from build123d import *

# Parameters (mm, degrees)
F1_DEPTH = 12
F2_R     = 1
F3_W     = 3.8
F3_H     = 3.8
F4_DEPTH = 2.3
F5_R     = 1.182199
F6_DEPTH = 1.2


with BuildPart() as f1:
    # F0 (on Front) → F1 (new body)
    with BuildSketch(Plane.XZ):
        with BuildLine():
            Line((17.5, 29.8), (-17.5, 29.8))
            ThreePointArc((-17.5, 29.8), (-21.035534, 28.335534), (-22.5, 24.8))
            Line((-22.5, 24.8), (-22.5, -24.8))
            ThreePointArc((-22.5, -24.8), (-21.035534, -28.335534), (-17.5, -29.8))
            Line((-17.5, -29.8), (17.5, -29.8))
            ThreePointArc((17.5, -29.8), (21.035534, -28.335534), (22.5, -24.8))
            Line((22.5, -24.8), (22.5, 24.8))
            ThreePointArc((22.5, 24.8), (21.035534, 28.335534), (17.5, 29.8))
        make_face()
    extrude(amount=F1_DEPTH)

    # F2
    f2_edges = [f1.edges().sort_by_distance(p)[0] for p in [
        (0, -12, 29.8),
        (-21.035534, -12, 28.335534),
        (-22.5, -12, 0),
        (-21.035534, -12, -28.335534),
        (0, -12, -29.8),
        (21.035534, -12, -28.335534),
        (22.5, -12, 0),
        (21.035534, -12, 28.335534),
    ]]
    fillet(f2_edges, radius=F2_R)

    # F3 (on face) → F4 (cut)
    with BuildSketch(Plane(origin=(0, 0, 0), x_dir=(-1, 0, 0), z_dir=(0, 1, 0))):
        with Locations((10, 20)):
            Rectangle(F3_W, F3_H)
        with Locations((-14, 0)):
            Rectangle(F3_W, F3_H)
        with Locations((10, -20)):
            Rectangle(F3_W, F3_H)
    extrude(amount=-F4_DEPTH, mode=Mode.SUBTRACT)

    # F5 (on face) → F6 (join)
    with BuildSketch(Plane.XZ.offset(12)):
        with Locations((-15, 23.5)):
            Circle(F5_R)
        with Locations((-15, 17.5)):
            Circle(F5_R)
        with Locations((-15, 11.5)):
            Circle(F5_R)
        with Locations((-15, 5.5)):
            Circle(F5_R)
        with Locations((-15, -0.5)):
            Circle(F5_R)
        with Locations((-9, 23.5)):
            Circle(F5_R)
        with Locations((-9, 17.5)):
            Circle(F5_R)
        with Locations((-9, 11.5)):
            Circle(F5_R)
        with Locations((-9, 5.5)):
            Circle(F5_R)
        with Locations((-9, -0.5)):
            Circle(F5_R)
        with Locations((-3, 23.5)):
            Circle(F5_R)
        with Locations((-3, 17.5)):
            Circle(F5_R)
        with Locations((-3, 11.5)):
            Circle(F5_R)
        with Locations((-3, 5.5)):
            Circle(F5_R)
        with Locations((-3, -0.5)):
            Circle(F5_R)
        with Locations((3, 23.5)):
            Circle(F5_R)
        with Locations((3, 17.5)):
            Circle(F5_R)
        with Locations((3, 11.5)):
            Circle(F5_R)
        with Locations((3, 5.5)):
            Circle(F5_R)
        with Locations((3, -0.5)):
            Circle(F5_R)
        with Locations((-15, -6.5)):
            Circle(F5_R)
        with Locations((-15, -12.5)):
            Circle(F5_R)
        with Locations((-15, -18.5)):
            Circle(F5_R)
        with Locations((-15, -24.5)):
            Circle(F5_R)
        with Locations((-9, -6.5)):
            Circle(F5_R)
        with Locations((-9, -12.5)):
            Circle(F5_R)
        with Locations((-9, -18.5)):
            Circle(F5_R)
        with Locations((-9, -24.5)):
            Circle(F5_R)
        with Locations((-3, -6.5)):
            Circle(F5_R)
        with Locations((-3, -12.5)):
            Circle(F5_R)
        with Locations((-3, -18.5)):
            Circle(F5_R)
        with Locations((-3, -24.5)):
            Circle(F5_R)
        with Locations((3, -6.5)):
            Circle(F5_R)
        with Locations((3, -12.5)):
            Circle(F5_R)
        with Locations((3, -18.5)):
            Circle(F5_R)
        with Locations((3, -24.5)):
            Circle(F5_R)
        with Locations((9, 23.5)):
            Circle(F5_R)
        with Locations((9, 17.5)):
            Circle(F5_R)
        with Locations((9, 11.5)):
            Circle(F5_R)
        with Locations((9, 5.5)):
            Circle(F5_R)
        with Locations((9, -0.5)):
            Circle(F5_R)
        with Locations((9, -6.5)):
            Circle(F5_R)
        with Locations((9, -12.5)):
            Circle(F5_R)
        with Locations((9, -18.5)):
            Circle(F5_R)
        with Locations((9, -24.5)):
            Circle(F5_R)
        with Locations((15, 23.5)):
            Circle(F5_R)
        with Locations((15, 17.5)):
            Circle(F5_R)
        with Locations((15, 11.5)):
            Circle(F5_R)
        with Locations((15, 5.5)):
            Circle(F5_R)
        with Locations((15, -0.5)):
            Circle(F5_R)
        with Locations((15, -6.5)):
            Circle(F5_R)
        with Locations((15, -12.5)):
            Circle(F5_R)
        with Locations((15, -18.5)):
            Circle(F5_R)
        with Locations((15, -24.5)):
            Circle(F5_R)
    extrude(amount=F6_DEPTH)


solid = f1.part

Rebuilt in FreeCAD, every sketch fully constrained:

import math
import FreeCAD as App
import Part
import Sketcher
from FreeCAD import Vector
Q = App.Units.Quantity


def edges_at(feature, points):
    """Names of the edges that pass closest to the given points."""
    edges = feature.Shape.Edges
    near = lambda p: min(range(len(edges)), key=lambda i: edges[i].distToShape(Part.Vertex(*p))[0])
    return sorted({f"Edge{near(p) + 1}" for p in points})


def add_polygon(sketch, points):
    """Adds a closed chain of lines whose ends are joined by coincident constraints."""
    first, n = sketch.GeometryCount, len(points)
    for a, b in zip(points, points[1:] + points[:1]):
        sketch.addGeometry(Part.LineSegment(App.Vector(*a, 0), App.Vector(*b, 0)), False)
    for i in range(n):
        sketch.addConstraint(Sketcher.Constraint("Coincident", first + i, 2, first + (i + 1) % n, 1))

doc = App.newDocument("Part")
body = doc.addObject("PartDesign::Body", "Body")

sketch1 = doc.addObject("Sketcher::SketchObject", "Sketch")
body.addObject(sketch1)
sketch1.AttachmentSupport = (doc.XZ_Plane, [""])
sketch1.MapMode = "FlatFace"
sketch1.addGeometry([
    Part.LineSegment(Vector(17.5, 29.8, 0), Vector(-17.5, 29.8, 0)),
    Part.ArcOfCircle(Part.Circle(Vector(-17.5, 24.8, 0), Vector(0, 0, 1), 5), math.radians(89.999996), math.radians(180.000004)),
    Part.LineSegment(Vector(-22.5, 24.8, 0), Vector(-22.5, -24.8, 0)),
    Part.ArcOfCircle(Part.Circle(Vector(-17.5, -24.8, 0), Vector(0, 0, 1), 5), math.radians(179.999996), math.radians(270.000004)),
    Part.LineSegment(Vector(-17.5, -29.8, 0), Vector(17.5, -29.8, 0)),
    Part.ArcOfCircle(Part.Circle(Vector(17.5, -24.8, 0), Vector(0, 0, 1), 5), math.radians(-90.000004), math.radians(0.000004)),
    Part.LineSegment(Vector(22.5, -24.8, 0), Vector(22.5, 24.8, 0)),
    Part.ArcOfCircle(Part.Circle(Vector(17.5, 24.8, 0), Vector(0, 0, 1), 5), math.radians(-0.000004), math.radians(90.000004)),
], False)
sketch1.addConstraint([
    Sketcher.Constraint("Tangent", 0, 2, 1, 1),
    Sketcher.Constraint("Tangent", 1, 2, 2, 1),
    Sketcher.Constraint("Tangent", 2, 2, 3, 1),
    Sketcher.Constraint("Tangent", 3, 2, 4, 1),
    Sketcher.Constraint("Tangent", 4, 2, 5, 1),
    Sketcher.Constraint("Tangent", 5, 2, 6, 1),
    Sketcher.Constraint("Tangent", 6, 2, 7, 1),
    Sketcher.Constraint("Tangent", 7, 2, 0, 1),
    Sketcher.Constraint("Horizontal", 0),
    Sketcher.Constraint("Vertical", 2),
    Sketcher.Constraint("Horizontal", 4),
    Sketcher.Constraint("Vertical", 6),
    Sketcher.Constraint("Equal", 1, 3),
    Sketcher.Constraint("Equal", 3, 5),
    Sketcher.Constraint("Equal", 5, 7),
    Sketcher.Constraint("Symmetric", 1, 3, 5, 3, -1, 1),
    Sketcher.Constraint("Radius", 1, Q("5 mm")),
    Sketcher.Constraint("DistanceX", 0, 2, 0, 1, Q("35 mm")),
    Sketcher.Constraint("DistanceY", 2, 2, 2, 1, Q("49.6 mm")),
])
pad1 = doc.addObject("PartDesign::Pad", "Pad")
body.addObject(pad1)
pad1.Profile = sketch1
pad1.Length = 12
doc.recompute()

fillet = doc.addObject("PartDesign::Fillet", "Fillet")
body.addObject(fillet)
fillet.Base = (pad1, edges_at(pad1, [
    (0, -12, 29.8),
    (-21.036, -12, 28.336),
    (-22.5, -12, 0),
    (-21.036, -12, -28.336),
    (0, -12, -29.8),
    (21.036, -12, -28.336),
    (22.5, -12, 0),
    (21.036, -12, 28.336),
]))
fillet.Radius = 1

sketch2 = doc.addObject("Sketcher::SketchObject", "Sketch001")
body.addObject(sketch2)
sketch2.AttachmentSupport = (doc.XZ_Plane, [""])
sketch2.MapMode = "FlatFace"
add_polygon(sketch2, [(-8.1, 21.9), (-8.1, 18.1), (-11.9, 18.1), (-11.9, 21.9)])
add_polygon(sketch2, [(15.9, 1.9), (15.9, -1.9), (12.1, -1.9), (12.1, 1.9)])
add_polygon(sketch2, [(-8.1, -18.1), (-8.1, -21.9), (-11.9, -21.9), (-11.9, -18.1)])
sketch2.addConstraint([
    Sketcher.Constraint("Vertical", 0),
    Sketcher.Constraint("Horizontal", 1),
    Sketcher.Constraint("Vertical", 2),
    Sketcher.Constraint("Horizontal", 3),
    Sketcher.Constraint("Vertical", 4),
    Sketcher.Constraint("Horizontal", 5),
    Sketcher.Constraint("Vertical", 6),
    Sketcher.Constraint("Horizontal", 7),
    Sketcher.Constraint("Vertical", 8),
    Sketcher.Constraint("Horizontal", 9),
    Sketcher.Constraint("Vertical", 10),
    Sketcher.Constraint("Horizontal", 11),
    Sketcher.Constraint("Symmetric", 3, 2, 8, 2, -1),
    Sketcher.Constraint("Symmetric", 1, 2, 10, 2, -1),
    Sketcher.Constraint("Equal", 3, 5),
    Sketcher.Constraint("Equal", 11, 0),
    Sketcher.Constraint("Equal", 2, 4),
    Sketcher.Constraint("DistanceX", 1, 2, 1, 1, Q("3.8 mm")),
    Sketcher.Constraint("DistanceX", 0, 2, 4, 2, Q("24 mm")),
    Sketcher.Constraint("DistanceY", 4, 2, 0, 2, Q("20 mm")),
    Sketcher.Constraint("DistanceY", 8, 2, 5, 2, Q("20 mm")),
    Sketcher.Constraint("DistanceX", 0, 2, -1, 1, Q("8.1 mm")),
])
pocket1 = doc.addObject("PartDesign::Pocket", "Pocket")
body.addObject(pocket1)
pocket1.Profile = sketch2
pocket1.Length = 2.3
pocket1.Reversed = True

sketch3 = doc.addObject("Sketcher::SketchObject", "Sketch002")
body.addObject(sketch3)
sketch3.AttachmentSupport = (doc.XZ_Plane, [""])
sketch3.MapMode = "FlatFace"
sketch3.AttachmentOffset = App.Placement(Vector(0, 0, 12), App.Rotation())
sketch3.addGeometry([
    Part.Circle(Vector(-15, 23.5, 0), Vector(0, 0, 1), 1.182199),
    Part.Circle(Vector(-15, 17.5, 0), Vector(0, 0, 1), 1.182199),
    Part.Circle(Vector(-15, 11.5, 0), Vector(0, 0, 1), 1.182199),
    Part.Circle(Vector(-15, 5.5, 0), Vector(0, 0, 1), 1.182199),
    Part.Circle(Vector(-15, -0.5, 0), Vector(0, 0, 1), 1.182199),
    Part.Circle(Vector(-9, 23.5, 0), Vector(0, 0, 1), 1.182199),
    Part.Circle(Vector(-9, 17.5, 0), Vector(0, 0, 1), 1.182199),
    Part.Circle(Vector(-9, 11.5, 0), Vector(0, 0, 1), 1.182199),
    Part.Circle(Vector(-9, 5.5, 0), Vector(0, 0, 1), 1.182199),
    Part.Circle(Vector(-9, -0.5, 0), Vector(0, 0, 1), 1.182199),
    Part.Circle(Vector(-3, 23.5, 0), Vector(0, 0, 1), 1.182199),
    Part.Circle(Vector(-3, 17.5, 0), Vector(0, 0, 1), 1.182199),
    Part.Circle(Vector(-3, 11.5, 0), Vector(0, 0, 1), 1.182199),
    Part.Circle(Vector(-3, 5.5, 0), Vector(0, 0, 1), 1.182199),
    Part.Circle(Vector(-3, -0.5, 0), Vector(0, 0, 1), 1.182199),
    Part.Circle(Vector(3, 23.5, 0), Vector(0, 0, 1), 1.182199),
    Part.Circle(Vector(3, 17.5, 0), Vector(0, 0, 1), 1.182199),
    Part.Circle(Vector(3, 11.5, 0), Vector(0, 0, 1), 1.182199),
    Part.Circle(Vector(3, 5.5, 0), Vector(0, 0, 1), 1.182199),
    Part.Circle(Vector(3, -0.5, 0), Vector(0, 0, 1), 1.182199),
    Part.Circle(Vector(-15, -6.5, 0), Vector(0, 0, 1), 1.182199),
    Part.Circle(Vector(-15, -12.5, 0), Vector(0, 0, 1), 1.182199),
    Part.Circle(Vector(-15, -18.5, 0), Vector(0, 0, 1), 1.182199),
    Part.Circle(Vector(-15, -24.5, 0), Vector(0, 0, 1), 1.182199),
    Part.Circle(Vector(-9, -6.5, 0), Vector(0, 0, 1), 1.182199),
    Part.Circle(Vector(-9, -12.5, 0), Vector(0, 0, 1), 1.182199),
    Part.Circle(Vector(-9, -18.5, 0), Vector(0, 0, 1), 1.182199),
    Part.Circle(Vector(-9, -24.5, 0), Vector(0, 0, 1), 1.182199),
    Part.Circle(Vector(-3, -6.5, 0), Vector(0, 0, 1), 1.182199),
    Part.Circle(Vector(-3, -12.5, 0), Vector(0, 0, 1), 1.182199),
    Part.Circle(Vector(-3, -18.5, 0), Vector(0, 0, 1), 1.182199),
    Part.Circle(Vector(-3, -24.5, 0), Vector(0, 0, 1), 1.182199),
    Part.Circle(Vector(3, -6.5, 0), Vector(0, 0, 1), 1.182199),
    Part.Circle(Vector(3, -12.5, 0), Vector(0, 0, 1), 1.182199),
    Part.Circle(Vector(3, -18.5, 0), Vector(0, 0, 1), 1.182199),
    Part.Circle(Vector(3, -24.5, 0), Vector(0, 0, 1), 1.182199),
    Part.Circle(Vector(9, 23.5, 0), Vector(0, 0, 1), 1.182199),
    Part.Circle(Vector(9, 17.5, 0), Vector(0, 0, 1), 1.182199),
    Part.Circle(Vector(9, 11.5, 0), Vector(0, 0, 1), 1.182199),
    Part.Circle(Vector(9, 5.5, 0), Vector(0, 0, 1), 1.182199),
    Part.Circle(Vector(9, -0.5, 0), Vector(0, 0, 1), 1.182199),
    Part.Circle(Vector(9, -6.5, 0), Vector(0, 0, 1), 1.182199),
    Part.Circle(Vector(9, -12.5, 0), Vector(0, 0, 1), 1.182199),
    Part.Circle(Vector(9, -18.5, 0), Vector(0, 0, 1), 1.182199),
    Part.Circle(Vector(9, -24.5, 0), Vector(0, 0, 1), 1.182199),
    Part.Circle(Vector(15, 23.5, 0), Vector(0, 0, 1), 1.182199),
    Part.Circle(Vector(15, 17.5, 0), Vector(0, 0, 1), 1.182199),
    Part.Circle(Vector(15, 11.5, 0), Vector(0, 0, 1), 1.182199),
    Part.Circle(Vector(15, 5.5, 0), Vector(0, 0, 1), 1.182199),
    Part.Circle(Vector(15, -0.5, 0), Vector(0, 0, 1), 1.182199),
    Part.Circle(Vector(15, -6.5, 0), Vector(0, 0, 1), 1.182199),
    Part.Circle(Vector(15, -12.5, 0), Vector(0, 0, 1), 1.182199),
    Part.Circle(Vector(15, -18.5, 0), Vector(0, 0, 1), 1.182199),
    Part.Circle(Vector(15, -24.5, 0), Vector(0, 0, 1), 1.182199),
], False)
sketch3.addConstraint([
    Sketcher.Constraint("Equal", 0, 1),
    Sketcher.Constraint("Equal", 1, 2),
    Sketcher.Constraint("Equal", 2, 3),
    Sketcher.Constraint("Equal", 3, 4),
    Sketcher.Constraint("Equal", 4, 5),
    Sketcher.Constraint("Equal", 5, 6),
    Sketcher.Constraint("Equal", 6, 7),
    Sketcher.Constraint("Equal", 7, 8),
    Sketcher.Constraint("Equal", 8, 9),
    Sketcher.Constraint("Equal", 9, 10),
    Sketcher.Constraint("Equal", 10, 11),
    Sketcher.Constraint("Equal", 11, 12),
    Sketcher.Constraint("Equal", 12, 13),
    Sketcher.Constraint("Equal", 13, 14),
    Sketcher.Constraint("Equal", 14, 15),
    Sketcher.Constraint("Equal", 15, 16),
    Sketcher.Constraint("Equal", 16, 17),
    Sketcher.Constraint("Equal", 17, 18),
    Sketcher.Constraint("Equal", 18, 19),
    Sketcher.Constraint("Equal", 19, 20),
    Sketcher.Constraint("Equal", 20, 21),
    Sketcher.Constraint("Equal", 21, 22),
    Sketcher.Constraint("Equal", 22, 23),
    Sketcher.Constraint("Equal", 23, 24),
    Sketcher.Constraint("Equal", 24, 25),
    Sketcher.Constraint("Equal", 25, 26),
    Sketcher.Constraint("Equal", 26, 27),
    Sketcher.Constraint("Equal", 27, 28),
    Sketcher.Constraint("Equal", 28, 29),
    Sketcher.Constraint("Equal", 29, 30),
    Sketcher.Constraint("Equal", 30, 31),
    Sketcher.Constraint("Equal", 31, 32),
    Sketcher.Constraint("Equal", 32, 33),
    Sketcher.Constraint("Equal", 33, 34),
    Sketcher.Constraint("Equal", 34, 35),
    Sketcher.Constraint("Equal", 35, 36),
    Sketcher.Constraint("Equal", 36, 37),
    Sketcher.Constraint("Equal", 37, 38),
    Sketcher.Constraint("Equal", 38, 39),
    Sketcher.Constraint("Equal", 39, 40),
    Sketcher.Constraint("Equal", 40, 41),
    Sketcher.Constraint("Equal", 41, 42),
    Sketcher.Constraint("Equal", 42, 43),
    Sketcher.Constraint("Equal", 43, 44),
    Sketcher.Constraint("Equal", 44, 45),
    Sketcher.Constraint("Equal", 45, 46),
    Sketcher.Constraint("Equal", 46, 47),
    Sketcher.Constraint("Equal", 47, 48),
    Sketcher.Constraint("Equal", 48, 49),
    Sketcher.Constraint("Equal", 49, 50),
    Sketcher.Constraint("Equal", 50, 51),
    Sketcher.Constraint("Equal", 51, 52),
    Sketcher.Constraint("Equal", 52, 53),
    Sketcher.Constraint("Symmetric", 10, 3, 15, 3, -2),
    Sketcher.Constraint("Symmetric", 11, 3, 16, 3, -2),
    Sketcher.Constraint("Symmetric", 12, 3, 17, 3, -2),
    Sketcher.Constraint("Symmetric", 13, 3, 18, 3, -2),
    Sketcher.Constraint("Symmetric", 14, 3, 19, 3, -2),
    Sketcher.Constraint("Symmetric", 28, 3, 32, 3, -2),
    Sketcher.Constraint("Symmetric", 29, 3, 33, 3, -2),
    Sketcher.Constraint("Symmetric", 30, 3, 34, 3, -2),
    Sketcher.Constraint("Symmetric", 31, 3, 35, 3, -2),
    Sketcher.Constraint("Symmetric", 5, 3, 36, 3, -2),
    Sketcher.Constraint("Symmetric", 6, 3, 37, 3, -2),
    Sketcher.Constraint("Symmetric", 7, 3, 38, 3, -2),
    Sketcher.Constraint("Symmetric", 8, 3, 39, 3, -2),
    Sketcher.Constraint("Symmetric", 9, 3, 40, 3, -2),
    Sketcher.Constraint("Symmetric", 24, 3, 41, 3, -2),
    Sketcher.Constraint("Symmetric", 25, 3, 42, 3, -2),
    Sketcher.Constraint("Symmetric", 26, 3, 43, 3, -2),
    Sketcher.Constraint("Symmetric", 27, 3, 44, 3, -2),
    Sketcher.Constraint("Symmetric", 0, 3, 45, 3, -2),
    Sketcher.Constraint("Symmetric", 1, 3, 46, 3, -2),
    Sketcher.Constraint("Symmetric", 2, 3, 47, 3, -2),
    Sketcher.Constraint("Symmetric", 3, 3, 48, 3, -2),
    Sketcher.Constraint("Symmetric", 4, 3, 49, 3, -2),
    Sketcher.Constraint("Symmetric", 20, 3, 50, 3, -2),
    Sketcher.Constraint("Symmetric", 21, 3, 51, 3, -2),
    Sketcher.Constraint("Symmetric", 22, 3, 52, 3, -2),
    Sketcher.Constraint("Symmetric", 23, 3, 53, 3, -2),
    Sketcher.Constraint("Horizontal", 0, 3, 5, 3),
    Sketcher.Constraint("Horizontal", 1, 3, 6, 3),
    Sketcher.Constraint("Horizontal", 2, 3, 7, 3),
    Sketcher.Constraint("Horizontal", 3, 3, 8, 3),
    Sketcher.Constraint("Horizontal", 4, 3, 9, 3),
    Sketcher.Constraint("Horizontal", 5, 3, 10, 3),
    Sketcher.Constraint("Horizontal", 6, 3, 11, 3),
    Sketcher.Constraint("Horizontal", 7, 3, 12, 3),
    Sketcher.Constraint("Horizontal", 8, 3, 13, 3),
    Sketcher.Constraint("Horizontal", 9, 3, 14, 3),
    Sketcher.Constraint("Horizontal", 20, 3, 24, 3),
    Sketcher.Constraint("Horizontal", 21, 3, 25, 3),
    Sketcher.Constraint("Horizontal", 22, 3, 26, 3),
    Sketcher.Constraint("Horizontal", 23, 3, 27, 3),
    Sketcher.Constraint("Horizontal", 24, 3, 28, 3),
    Sketcher.Constraint("Horizontal", 25, 3, 29, 3),
    Sketcher.Constraint("Horizontal", 26, 3, 30, 3),
    Sketcher.Constraint("Horizontal", 27, 3, 31, 3),
    Sketcher.Constraint("Vertical", 0, 3, 1, 3),
    Sketcher.Constraint("Vertical", 1, 3, 2, 3),
    Sketcher.Constraint("Vertical", 2, 3, 3, 3),
    Sketcher.Constraint("Vertical", 3, 3, 4, 3),
    Sketcher.Constraint("Vertical", 5, 3, 6, 3),
    Sketcher.Constraint("Vertical", 6, 3, 7, 3),
    Sketcher.Constraint("Vertical", 7, 3, 8, 3),
    Sketcher.Constraint("Vertical", 8, 3, 9, 3),
    Sketcher.Constraint("Vertical", 10, 3, 11, 3),
    Sketcher.Constraint("Vertical", 11, 3, 12, 3),
    Sketcher.Constraint("Vertical", 12, 3, 13, 3),
    Sketcher.Constraint("Vertical", 13, 3, 14, 3),
    Sketcher.Constraint("Vertical", 4, 3, 20, 3),
    Sketcher.Constraint("Vertical", 20, 3, 21, 3),
    Sketcher.Constraint("Vertical", 21, 3, 22, 3),
    Sketcher.Constraint("Vertical", 22, 3, 23, 3),
    Sketcher.Constraint("Vertical", 9, 3, 24, 3),
    Sketcher.Constraint("Vertical", 24, 3, 25, 3),
    Sketcher.Constraint("Vertical", 25, 3, 26, 3),
    Sketcher.Constraint("Vertical", 26, 3, 27, 3),
    Sketcher.Constraint("Vertical", 14, 3, 28, 3),
    Sketcher.Constraint("Vertical", 28, 3, 29, 3),
    Sketcher.Constraint("Vertical", 29, 3, 30, 3),
    Sketcher.Constraint("Vertical", 30, 3, 31, 3),
    Sketcher.Constraint("DistanceX", 0, 3, -1, 1, Q("15 mm")),
    Sketcher.Constraint("DistanceX", 5, 3, -1, 1, Q("9 mm")),
    Sketcher.Constraint("DistanceX", 10, 3, -1, 1, Q("3 mm")),
    Sketcher.Constraint("DistanceY", 1, 3, 0, 3, Q("6 mm")),
    Sketcher.Constraint("DistanceY", 2, 3, 1, 3, Q("6 mm")),
    Sketcher.Constraint("DistanceY", 3, 3, 2, 3, Q("6 mm")),
    Sketcher.Constraint("DistanceY", 4, 3, 3, 3, Q("6 mm")),
    Sketcher.Constraint("DistanceY", 20, 3, 4, 3, Q("6 mm")),
    Sketcher.Constraint("DistanceY", 21, 3, 20, 3, Q("6 mm")),
    Sketcher.Constraint("DistanceY", 22, 3, 21, 3, Q("6 mm")),
    Sketcher.Constraint("DistanceY", 23, 3, 22, 3, Q("6 mm")),
    Sketcher.Constraint("Diameter", 0, Q("2.364398 mm")),
    Sketcher.Constraint("DistanceY", -1, 1, 0, 3, Q("23.5 mm")),
])
pad2 = doc.addObject("PartDesign::Pad", "Pad001")
body.addObject(pad2)
pad2.Profile = sketch3
pad2.Length = 1.2

doc.recompute()
